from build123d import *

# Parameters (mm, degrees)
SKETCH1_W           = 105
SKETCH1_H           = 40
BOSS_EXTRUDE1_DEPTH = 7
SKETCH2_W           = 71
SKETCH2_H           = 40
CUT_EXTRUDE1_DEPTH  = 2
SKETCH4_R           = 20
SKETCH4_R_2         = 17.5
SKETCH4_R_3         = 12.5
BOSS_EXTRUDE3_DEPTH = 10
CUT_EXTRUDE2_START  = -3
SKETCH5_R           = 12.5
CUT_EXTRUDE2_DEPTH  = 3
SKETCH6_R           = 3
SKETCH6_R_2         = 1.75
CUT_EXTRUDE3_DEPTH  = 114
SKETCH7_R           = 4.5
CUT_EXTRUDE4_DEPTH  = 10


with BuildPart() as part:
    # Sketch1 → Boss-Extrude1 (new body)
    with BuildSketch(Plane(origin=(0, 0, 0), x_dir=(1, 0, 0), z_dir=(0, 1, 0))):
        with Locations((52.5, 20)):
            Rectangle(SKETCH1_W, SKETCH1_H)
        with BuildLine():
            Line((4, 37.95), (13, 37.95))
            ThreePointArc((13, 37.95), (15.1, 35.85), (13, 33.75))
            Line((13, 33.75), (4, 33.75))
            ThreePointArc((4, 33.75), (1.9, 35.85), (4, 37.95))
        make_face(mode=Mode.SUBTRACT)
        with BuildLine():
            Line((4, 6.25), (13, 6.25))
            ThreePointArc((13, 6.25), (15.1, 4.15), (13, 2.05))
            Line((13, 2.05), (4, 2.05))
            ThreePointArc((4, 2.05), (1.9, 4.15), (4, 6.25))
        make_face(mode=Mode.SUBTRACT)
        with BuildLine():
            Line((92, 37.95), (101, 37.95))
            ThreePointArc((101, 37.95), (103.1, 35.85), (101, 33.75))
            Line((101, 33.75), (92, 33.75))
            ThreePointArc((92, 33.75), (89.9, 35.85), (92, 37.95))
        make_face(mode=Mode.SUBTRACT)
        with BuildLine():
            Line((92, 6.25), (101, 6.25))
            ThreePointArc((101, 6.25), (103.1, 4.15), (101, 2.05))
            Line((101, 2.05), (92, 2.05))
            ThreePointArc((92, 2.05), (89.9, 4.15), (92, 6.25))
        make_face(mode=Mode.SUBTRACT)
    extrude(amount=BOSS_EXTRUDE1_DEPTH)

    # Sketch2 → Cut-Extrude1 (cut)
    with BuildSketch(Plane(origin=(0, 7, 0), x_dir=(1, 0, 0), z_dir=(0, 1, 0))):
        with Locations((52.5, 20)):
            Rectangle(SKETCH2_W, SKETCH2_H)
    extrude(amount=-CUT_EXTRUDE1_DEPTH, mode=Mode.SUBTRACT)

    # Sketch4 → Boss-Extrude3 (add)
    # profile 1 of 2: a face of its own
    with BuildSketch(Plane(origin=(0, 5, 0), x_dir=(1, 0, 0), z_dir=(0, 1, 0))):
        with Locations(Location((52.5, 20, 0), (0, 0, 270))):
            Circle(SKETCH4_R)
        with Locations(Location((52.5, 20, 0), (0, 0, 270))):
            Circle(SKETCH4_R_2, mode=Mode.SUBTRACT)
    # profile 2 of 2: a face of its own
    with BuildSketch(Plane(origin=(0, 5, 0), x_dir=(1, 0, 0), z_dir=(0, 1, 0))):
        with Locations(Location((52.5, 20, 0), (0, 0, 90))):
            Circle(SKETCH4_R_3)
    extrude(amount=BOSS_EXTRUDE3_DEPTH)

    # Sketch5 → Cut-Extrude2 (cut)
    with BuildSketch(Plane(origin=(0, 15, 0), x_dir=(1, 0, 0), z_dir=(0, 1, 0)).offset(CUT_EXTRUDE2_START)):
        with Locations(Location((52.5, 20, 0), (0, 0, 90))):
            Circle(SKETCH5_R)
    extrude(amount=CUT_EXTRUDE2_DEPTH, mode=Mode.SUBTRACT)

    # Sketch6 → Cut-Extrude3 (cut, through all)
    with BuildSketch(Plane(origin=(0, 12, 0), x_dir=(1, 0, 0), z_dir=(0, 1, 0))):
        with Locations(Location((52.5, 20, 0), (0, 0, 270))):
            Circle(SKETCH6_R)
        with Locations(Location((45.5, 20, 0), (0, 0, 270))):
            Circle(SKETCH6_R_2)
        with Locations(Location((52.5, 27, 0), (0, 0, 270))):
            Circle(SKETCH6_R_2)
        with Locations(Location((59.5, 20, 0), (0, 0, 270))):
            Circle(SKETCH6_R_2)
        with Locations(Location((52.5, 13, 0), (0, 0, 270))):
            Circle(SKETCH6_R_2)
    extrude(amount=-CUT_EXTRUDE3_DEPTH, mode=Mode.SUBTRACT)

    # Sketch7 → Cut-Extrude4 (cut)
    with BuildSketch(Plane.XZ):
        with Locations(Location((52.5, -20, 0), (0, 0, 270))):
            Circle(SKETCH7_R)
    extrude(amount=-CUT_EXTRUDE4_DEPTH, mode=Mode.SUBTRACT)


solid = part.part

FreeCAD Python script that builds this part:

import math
import FreeCAD as App
import Part
import Sketcher
from FreeCAD import Vector

doc = App.newDocument("Part")
params = doc.addObject("Spreadsheet::Sheet", "Params")
for row, (alias, value) in enumerate([
    ("sketch1_radius", "2.1 mm"),
    ("sketch1_width", "105 mm"),
    ("sketch1_width2", "9 mm"),
    ("sketch1_height", "40 mm"),
    ("pad1_length", "7 mm"),
    ("sketch2_width", "71 mm"),
    ("sketch2_height", "40 mm"),
    ("pocket1_length", "2 mm"),
    ("sketch3_diameter", "40 mm"),
    ("sketch3_diameter2", "35 mm"),
    ("sketch3_diameter3", "25 mm"),
    ("pad2_length", "10 mm"),
    ("sketch4_diameter", "25 mm"),
    ("pocket2_length", "3 mm"),
    ("sketch5_diameter", "6 mm"),
    ("sketch5_diameter2", "3.5 mm"),
    ("sketch6_diameter", "9 mm"),
    ("pocket4_length", "10 mm"),
], start=1):
    params.set(f"A{row}", alias)
    params.set(f"B{row}", "=" + value)
    params.setAlias(f"B{row}", alias)

body = doc.addObject("PartDesign::Body", "Body")

sketch1 = doc.addObject("Sketcher::SketchObject", "Sketch")
body.addObject(sketch1)
sketch1.AttachmentSupport = (doc.XZ_Plane, [""])
sketch1.MapMode = "FlatFace"
sketch1.addGeometry([
    Part.LineSegment(Vector(0, -40, 0), Vector(0, 0, 0)),
    Part.LineSegment(Vector(0, 0, 0), Vector(105, 0, 0)),
    Part.LineSegment(Vector(105, 0, 0), Vector(105, -40, 0)),
    Part.LineSegment(Vector(105, -40, 0), Vector(0, -40, 0)),
    Part.ArcOfCircle(Part.Circle(Vector(4, -4.15, 0), Vector(0, 0, 1), 2.1), math.radians(90), math.radians(270)),
    Part.LineSegment(Vector(4, -6.25, 0), Vector(13, -6.25, 0)),
    Part.ArcOfCircle(Part.Circle(Vector(13, -4.15, 0), Vector(0, 0, 1), 2.1), math.radians(-90), math.radians(90)),
    Part.LineSegment(Vector(13, -2.05, 0), Vector(4, -2.05, 0)),
    Part.ArcOfCircle(Part.Circle(Vector(92, -4.15, 0), Vector(0, 0, 1), 2.1), math.radians(90), math.radians(270)),
    Part.LineSegment(Vector(92, -6.25, 0), Vector(101, -6.25, 0)),
    Part.ArcOfCircle(Part.Circle(Vector(101, -4.15, 0), Vector(0, 0, 1), 2.1), math.radians(-90), math.radians(90)),
    Part.LineSegment(Vector(101, -2.05, 0), Vector(92, -2.05, 0)),
    Part.ArcOfCircle(Part.Circle(Vector(4, -35.85, 0), Vector(0, 0, 1), 2.1), math.radians(90), math.radians(270)),
    Part.LineSegment(Vector(4, -37.95, 0), Vector(13, -37.95, 0)),
    Part.ArcOfCircle(Part.Circle(Vector(13, -35.85, 0), Vector(0, 0, 1), 2.1), math.radians(-90), math.radians(90)),
    Part.LineSegment(Vector(13, -33.75, 0), Vector(4, -33.75, 0)),
    Part.ArcOfCircle(Part.Circle(Vector(92, -35.85, 0), Vector(0, 0, 1), 2.1), math.radians(90), math.radians(270)),
    Part.LineSegment(Vector(92, -37.95, 0), Vector(101, -37.95, 0)),
    Part.ArcOfCircle(Part.Circle(Vector(101, -35.85, 0), Vector(0, 0, 1), 2.1), math.radians(-90), math.radians(90)),
    Part.LineSegment(Vector(101, -33.75, 0), Vector(92, -33.75, 0)),
], False)
sketch1.addConstraint([
    Sketcher.Constraint("Coincident", 0, 2, 1, 1),
    Sketcher.Constraint("Coincident", 1, 2, 2, 1),
    Sketcher.Constraint("Coincident", 2, 2, 3, 1),
    Sketcher.Constraint("Coincident", 3, 2, 0, 1),
    Sketcher.Constraint("Tangent", 4, 2, 5, 1),
    Sketcher.Constraint("Tangent", 5, 2, 6, 1),
    Sketcher.Constraint("Tangent", 6, 2, 7, 1),
    Sketcher.Constraint("Tangent", 7, 2, 4, 1),
    Sketcher.Constraint("Tangent", 8, 2, 9, 1),
    Sketcher.Constraint("Tangent", 9, 2, 10, 1),
    Sketcher.Constraint("Tangent", 10, 2, 11, 1),
    Sketcher.Constraint("Tangent", 11, 2, 8, 1),
    Sketcher.Constraint("Tangent", 12, 2, 13, 1),
    Sketcher.Constraint("Tangent", 13, 2, 14, 1),
    Sketcher.Constraint("Tangent", 14, 2, 15, 1),
    Sketcher.Constraint("Tangent", 15, 2, 12, 1),
    Sketcher.Constraint("Tangent", 16, 2, 17, 1),
    Sketcher.Constraint("Tangent", 17, 2, 18, 1),
    Sketcher.Constraint("Tangent", 18, 2, 19, 1),
    Sketcher.Constraint("Tangent", 19, 2, 16, 1),
    Sketcher.Constraint("Vertical", 0),
    Sketcher.Constraint("Horizontal", 1),
    Sketcher.Constraint("Vertical", 2),
    Sketcher.Constraint("Horizontal", 3),
    Sketcher.Constraint("Horizontal", 5),
    Sketcher.Constraint("Horizontal", 7),
    Sketcher.Constraint("Horizontal", 9),
    Sketcher.Constraint("Horizontal", 11),
    Sketcher.Constraint("Horizontal", 13),
    Sketcher.Constraint("Horizontal", 15),
    Sketcher.Constraint("Horizontal", 17),
    Sketcher.Constraint("Horizontal", 19),
    Sketcher.Constraint("Coincident", 0, 2, -1, 1),
    Sketcher.Constraint("Equal", 6, 8),
    Sketcher.Constraint("Equal", 10, 12),
    Sketcher.Constraint("Equal", 14, 16),
    Sketcher.Constraint("Horizontal", 6, 3, 8, 3),
    Sketcher.Constraint("Horizontal", 14, 3, 16, 3),
    Sketcher.Constraint("Vertical", 4, 3, 12, 3),
    Sketcher.Constraint("Vertical", 6, 3, 14, 3),
    Sketcher.Constraint("Vertical", 8, 3, 16, 3),
    Sketcher.Constraint("Vertical", 10, 3, 18, 3),
    Sketcher.Constraint("Equal", 7, 9),
    Sketcher.Constraint("Radius", 4, 2.1),
    Sketcher.Constraint("DistanceX", 1, 1, 1, 2, 105.0),
    Sketcher.Constraint("DistanceX", 5, 1, 5, 2, 9.0),
    Sketcher.Constraint("DistanceY", 0, 1, 0, 2, 40.0),
    Sketcher.Constraint("DistanceX", -1, 1, 4, 3, 4.0),
    Sketcher.Constraint("DistanceX", -1, 1, 8, 3, 92.0),
    Sketcher.Constraint("DistanceY", 12, 3, 4, 3, 31.7),
    Sketcher.Constraint("DistanceY", 4, 3, -1, 1, 4.15),
])
sketch1.setExpression("Constraints[43]", "Params.sketch1_radius")
sketch1.setExpression("Constraints[44]", "Params.sketch1_width")
sketch1.setExpression("Constraints[45]", "Params.sketch1_width2")
sketch1.setExpression("Constraints[46]", "Params.sketch1_height")
pad1 = doc.addObject("PartDesign::Pad", "Pad")
body.addObject(pad1)
pad1.Profile = sketch1
pad1.setExpression("Length", "Params.pad1_length")
pad1.Reversed = True

sketch2 = doc.addObject("Sketcher::SketchObject", "Sketch001")
body.addObject(sketch2)
sketch2.AttachmentSupport = (doc.XZ_Plane, [""])
sketch2.MapMode = "FlatFace"
sketch2.AttachmentOffset = App.Placement(Vector(0, 0, -7), App.Rotation())
sketch2.addGeometry([
    Part.LineSegment(Vector(17, -40, 0), Vector(17, 0, 0)),
    Part.LineSegment(Vector(17, 0, 0), Vector(88, 0, 0)),
    Part.LineSegment(Vector(88, 0, 0), Vector(88, -40, 0)),
    Part.LineSegment(Vector(88, -40, 0), Vector(17, -40, 0)),
], False)
sketch2.addConstraint([
    Sketcher.Constraint("Coincident", 0, 2, 1, 1),
    Sketcher.Constraint("Coincident", 1, 2, 2, 1),
    Sketcher.Constraint("Coincident", 2, 2, 3, 1),
    Sketcher.Constraint("Coincident", 3, 2, 0, 1),
    Sketcher.Constraint("Vertical", 0),
    Sketcher.Constraint("Horizontal", 1),
    Sketcher.Constraint("Vertical", 2),
    Sketcher.Constraint("Horizontal", 3),
    Sketcher.Constraint("PointOnObject", 0, 2, -1),
    Sketcher.Constraint("DistanceX", 1, 1, 1, 2, 71.0),
    Sketcher.Constraint("DistanceY", 0, 1, 0, 2, 40.0),
    Sketcher.Constraint("DistanceX", -1, 1, 0, 2, 17.0),
])
sketch2.setExpression("Constraints[9]", "Params.sketch2_width")
sketch2.setExpression("Constraints[10]", "Params.sketch2_height")
pocket1 = doc.addObject("PartDesign::Pocket", "Pocket")
body.addObject(pocket1)
pocket1.Profile = sketch2
pocket1.setExpression("Length", "Params.pocket1_length")
pocket1.Reversed = True

sketch3 = doc.addObject("Sketcher::SketchObject", "Sketch002")
body.addObject(sketch3)
sketch3.AttachmentSupport = (doc.XZ_Plane, [""])
sketch3.MapMode = "FlatFace"
sketch3.AttachmentOffset = App.Placement(Vector(0, 0, -5), App.Rotation())
sketch3.addGeometry([
    Part.Circle(Vector(52.5, -20, 0), Vector(0, 0, 1), 20),
    Part.Circle(Vector(52.5, -20, 0), Vector(0, 0, 1), 17.5),
    Part.Circle(Vector(52.5, -20, 0), Vector(0, 0, 1), 12.5),
], False)
sketch3.addConstraint([
    Sketcher.Constraint("Coincident", 1, 3, 0, 3),
    Sketcher.Constraint("Coincident", 2, 3, 0, 3),
    Sketcher.Constraint("Diameter", 0, 40.0),
    Sketcher.Constraint("Diameter", 1, 35.0),
    Sketcher.Constraint("Diameter", 2, 25.0),
    Sketcher.Constraint("DistanceY", 0, 3, -1, 1, 20.0),
    Sketcher.Constraint("DistanceX", -1, 1, 0, 3, 52.5),
])
sketch3.setExpression("Constraints[2]", "Params.sketch3_diameter")
sketch3.setExpression("Constraints[3]", "Params.sketch3_diameter2")
sketch3.setExpression("Constraints[4]", "Params.sketch3_diameter3")
pad2 = doc.addObject("PartDesign::Pad", "Pad001")
body.addObject(pad2)
pad2.Profile = sketch3
pad2.setExpression("Length", "Params.pad2_length")
pad2.Reversed = True

sketch4 = doc.addObject("Sketcher::SketchObject", "Sketch003")
body.addObject(sketch4)
sketch4.AttachmentSupport = (doc.XZ_Plane, [""])
sketch4.MapMode = "FlatFace"
sketch4.AttachmentOffset = App.Placement(Vector(0, 0, -12), App.Rotation())
sketch4.addGeometry(Part.Circle(Vector(52.5, -20, 0), Vector(0, 0, 1), 12.5), False)
sketch4.addConstraint([
    Sketcher.Constraint("Diameter", 0, 25.0),
    Sketcher.Constraint("DistanceY", 0, 3, -1, 1, 20.0),
    Sketcher.Constraint("DistanceX", -1, 1, 0, 3, 52.5),
])
sketch4.setExpression("Constraints[0]", "Params.sketch4_diameter")
pocket2 = doc.addObject("PartDesign::Pocket", "Pocket001")
body.addObject(pocket2)
pocket2.Profile = sketch4
pocket2.setExpression("Length", "Params.pocket2_length")

sketch5 = doc.addObject("Sketcher::SketchObject", "Sketch004")
body.addObject(sketch5)
sketch5.AttachmentSupport = (doc.XZ_Plane, [""])
sketch5.MapMode = "FlatFace"
sketch5.AttachmentOffset = App.Placement(Vector(0, 0, -12), App.Rotation())
sketch5.addGeometry([
    Part.Circle(Vector(52.5, -20, 0), Vector(0, 0, 1), 3),
    Part.Circle(Vector(45.5, -20, 0), Vector(0, 0, 1), 1.75),
    Part.Circle(Vector(52.5, -27, 0), Vector(0, 0, 1), 1.75),
    Part.Circle(Vector(59.5, -20, 0), Vector(0, 0, 1), 1.75),
    Part.Circle(Vector(52.5, -13, 0), Vector(0, 0, 1), 1.75),
], False)
sketch5.addConstraint([
    Sketcher.Constraint("Equal", 1, 2),
    Sketcher.Constraint("Equal", 2, 3),
    Sketcher.Constraint("Equal", 3, 4),
    Sketcher.Constraint("Horizontal", 0, 3, 1, 3),
    Sketcher.Constraint("Horizontal", 1, 3, 3, 3),
    Sketcher.Constraint("Vertical", 0, 3, 2, 3),
    Sketcher.Constraint("Vertical", 2, 3, 4, 3),
    Sketcher.Constraint("Diameter", 0, 6.0),
    Sketcher.Constraint("Diameter", 1, 3.5),
    Sketcher.Constraint("DistanceY", 0, 3, -1, 1, 20.0),
    Sketcher.Constraint("DistanceY", 2, 3, -1, 1, 27.0),
    Sketcher.Constraint("DistanceY", 4, 3, -1, 1, 13.0),
    Sketcher.Constraint("DistanceX", 1, 3, 0, 3, 7.0),
    Sketcher.Constraint("DistanceX", 0, 3, 3, 3, 7.0),
    Sketcher.Constraint("DistanceX", -1, 1, 0, 3, 52.5),
])
sketch5.setExpression("Constraints[7]", "Params.sketch5_diameter")
sketch5.setExpression("Constraints[8]", "Params.sketch5_diameter2")
pocket3 = doc.addObject("PartDesign::Pocket", "Pocket002")
body.addObject(pocket3)
pocket3.Profile = sketch5
pocket3.Type = "ThroughAll"
pocket3.Reversed = True

sketch6 = doc.addObject("Sketcher::SketchObject", "Sketch005")
body.addObject(sketch6)
sketch6.AttachmentSupport = (doc.XZ_Plane, [""])
sketch6.MapMode = "FlatFace"
sketch6.addGeometry(Part.Circle(Vector(52.5, -20, 0), Vector(0, 0, 1), 4.5), False)
sketch6.addConstraint([
    Sketcher.Constraint("Diameter", 0, 9.0),
    Sketcher.Constraint("DistanceY", 0, 3, -1, 1, 20.0),
    Sketcher.Constraint("DistanceX", -1, 1, 0, 3, 52.5),
])
sketch6.setExpression("Constraints[0]", "Params.sketch6_diameter")
pocket4 = doc.addObject("PartDesign::Pocket", "Pocket003")
body.addObject(pocket4)
pocket4.Profile = sketch6
pocket4.setExpression("Length", "Params.pocket4_length")

doc.recompute()
